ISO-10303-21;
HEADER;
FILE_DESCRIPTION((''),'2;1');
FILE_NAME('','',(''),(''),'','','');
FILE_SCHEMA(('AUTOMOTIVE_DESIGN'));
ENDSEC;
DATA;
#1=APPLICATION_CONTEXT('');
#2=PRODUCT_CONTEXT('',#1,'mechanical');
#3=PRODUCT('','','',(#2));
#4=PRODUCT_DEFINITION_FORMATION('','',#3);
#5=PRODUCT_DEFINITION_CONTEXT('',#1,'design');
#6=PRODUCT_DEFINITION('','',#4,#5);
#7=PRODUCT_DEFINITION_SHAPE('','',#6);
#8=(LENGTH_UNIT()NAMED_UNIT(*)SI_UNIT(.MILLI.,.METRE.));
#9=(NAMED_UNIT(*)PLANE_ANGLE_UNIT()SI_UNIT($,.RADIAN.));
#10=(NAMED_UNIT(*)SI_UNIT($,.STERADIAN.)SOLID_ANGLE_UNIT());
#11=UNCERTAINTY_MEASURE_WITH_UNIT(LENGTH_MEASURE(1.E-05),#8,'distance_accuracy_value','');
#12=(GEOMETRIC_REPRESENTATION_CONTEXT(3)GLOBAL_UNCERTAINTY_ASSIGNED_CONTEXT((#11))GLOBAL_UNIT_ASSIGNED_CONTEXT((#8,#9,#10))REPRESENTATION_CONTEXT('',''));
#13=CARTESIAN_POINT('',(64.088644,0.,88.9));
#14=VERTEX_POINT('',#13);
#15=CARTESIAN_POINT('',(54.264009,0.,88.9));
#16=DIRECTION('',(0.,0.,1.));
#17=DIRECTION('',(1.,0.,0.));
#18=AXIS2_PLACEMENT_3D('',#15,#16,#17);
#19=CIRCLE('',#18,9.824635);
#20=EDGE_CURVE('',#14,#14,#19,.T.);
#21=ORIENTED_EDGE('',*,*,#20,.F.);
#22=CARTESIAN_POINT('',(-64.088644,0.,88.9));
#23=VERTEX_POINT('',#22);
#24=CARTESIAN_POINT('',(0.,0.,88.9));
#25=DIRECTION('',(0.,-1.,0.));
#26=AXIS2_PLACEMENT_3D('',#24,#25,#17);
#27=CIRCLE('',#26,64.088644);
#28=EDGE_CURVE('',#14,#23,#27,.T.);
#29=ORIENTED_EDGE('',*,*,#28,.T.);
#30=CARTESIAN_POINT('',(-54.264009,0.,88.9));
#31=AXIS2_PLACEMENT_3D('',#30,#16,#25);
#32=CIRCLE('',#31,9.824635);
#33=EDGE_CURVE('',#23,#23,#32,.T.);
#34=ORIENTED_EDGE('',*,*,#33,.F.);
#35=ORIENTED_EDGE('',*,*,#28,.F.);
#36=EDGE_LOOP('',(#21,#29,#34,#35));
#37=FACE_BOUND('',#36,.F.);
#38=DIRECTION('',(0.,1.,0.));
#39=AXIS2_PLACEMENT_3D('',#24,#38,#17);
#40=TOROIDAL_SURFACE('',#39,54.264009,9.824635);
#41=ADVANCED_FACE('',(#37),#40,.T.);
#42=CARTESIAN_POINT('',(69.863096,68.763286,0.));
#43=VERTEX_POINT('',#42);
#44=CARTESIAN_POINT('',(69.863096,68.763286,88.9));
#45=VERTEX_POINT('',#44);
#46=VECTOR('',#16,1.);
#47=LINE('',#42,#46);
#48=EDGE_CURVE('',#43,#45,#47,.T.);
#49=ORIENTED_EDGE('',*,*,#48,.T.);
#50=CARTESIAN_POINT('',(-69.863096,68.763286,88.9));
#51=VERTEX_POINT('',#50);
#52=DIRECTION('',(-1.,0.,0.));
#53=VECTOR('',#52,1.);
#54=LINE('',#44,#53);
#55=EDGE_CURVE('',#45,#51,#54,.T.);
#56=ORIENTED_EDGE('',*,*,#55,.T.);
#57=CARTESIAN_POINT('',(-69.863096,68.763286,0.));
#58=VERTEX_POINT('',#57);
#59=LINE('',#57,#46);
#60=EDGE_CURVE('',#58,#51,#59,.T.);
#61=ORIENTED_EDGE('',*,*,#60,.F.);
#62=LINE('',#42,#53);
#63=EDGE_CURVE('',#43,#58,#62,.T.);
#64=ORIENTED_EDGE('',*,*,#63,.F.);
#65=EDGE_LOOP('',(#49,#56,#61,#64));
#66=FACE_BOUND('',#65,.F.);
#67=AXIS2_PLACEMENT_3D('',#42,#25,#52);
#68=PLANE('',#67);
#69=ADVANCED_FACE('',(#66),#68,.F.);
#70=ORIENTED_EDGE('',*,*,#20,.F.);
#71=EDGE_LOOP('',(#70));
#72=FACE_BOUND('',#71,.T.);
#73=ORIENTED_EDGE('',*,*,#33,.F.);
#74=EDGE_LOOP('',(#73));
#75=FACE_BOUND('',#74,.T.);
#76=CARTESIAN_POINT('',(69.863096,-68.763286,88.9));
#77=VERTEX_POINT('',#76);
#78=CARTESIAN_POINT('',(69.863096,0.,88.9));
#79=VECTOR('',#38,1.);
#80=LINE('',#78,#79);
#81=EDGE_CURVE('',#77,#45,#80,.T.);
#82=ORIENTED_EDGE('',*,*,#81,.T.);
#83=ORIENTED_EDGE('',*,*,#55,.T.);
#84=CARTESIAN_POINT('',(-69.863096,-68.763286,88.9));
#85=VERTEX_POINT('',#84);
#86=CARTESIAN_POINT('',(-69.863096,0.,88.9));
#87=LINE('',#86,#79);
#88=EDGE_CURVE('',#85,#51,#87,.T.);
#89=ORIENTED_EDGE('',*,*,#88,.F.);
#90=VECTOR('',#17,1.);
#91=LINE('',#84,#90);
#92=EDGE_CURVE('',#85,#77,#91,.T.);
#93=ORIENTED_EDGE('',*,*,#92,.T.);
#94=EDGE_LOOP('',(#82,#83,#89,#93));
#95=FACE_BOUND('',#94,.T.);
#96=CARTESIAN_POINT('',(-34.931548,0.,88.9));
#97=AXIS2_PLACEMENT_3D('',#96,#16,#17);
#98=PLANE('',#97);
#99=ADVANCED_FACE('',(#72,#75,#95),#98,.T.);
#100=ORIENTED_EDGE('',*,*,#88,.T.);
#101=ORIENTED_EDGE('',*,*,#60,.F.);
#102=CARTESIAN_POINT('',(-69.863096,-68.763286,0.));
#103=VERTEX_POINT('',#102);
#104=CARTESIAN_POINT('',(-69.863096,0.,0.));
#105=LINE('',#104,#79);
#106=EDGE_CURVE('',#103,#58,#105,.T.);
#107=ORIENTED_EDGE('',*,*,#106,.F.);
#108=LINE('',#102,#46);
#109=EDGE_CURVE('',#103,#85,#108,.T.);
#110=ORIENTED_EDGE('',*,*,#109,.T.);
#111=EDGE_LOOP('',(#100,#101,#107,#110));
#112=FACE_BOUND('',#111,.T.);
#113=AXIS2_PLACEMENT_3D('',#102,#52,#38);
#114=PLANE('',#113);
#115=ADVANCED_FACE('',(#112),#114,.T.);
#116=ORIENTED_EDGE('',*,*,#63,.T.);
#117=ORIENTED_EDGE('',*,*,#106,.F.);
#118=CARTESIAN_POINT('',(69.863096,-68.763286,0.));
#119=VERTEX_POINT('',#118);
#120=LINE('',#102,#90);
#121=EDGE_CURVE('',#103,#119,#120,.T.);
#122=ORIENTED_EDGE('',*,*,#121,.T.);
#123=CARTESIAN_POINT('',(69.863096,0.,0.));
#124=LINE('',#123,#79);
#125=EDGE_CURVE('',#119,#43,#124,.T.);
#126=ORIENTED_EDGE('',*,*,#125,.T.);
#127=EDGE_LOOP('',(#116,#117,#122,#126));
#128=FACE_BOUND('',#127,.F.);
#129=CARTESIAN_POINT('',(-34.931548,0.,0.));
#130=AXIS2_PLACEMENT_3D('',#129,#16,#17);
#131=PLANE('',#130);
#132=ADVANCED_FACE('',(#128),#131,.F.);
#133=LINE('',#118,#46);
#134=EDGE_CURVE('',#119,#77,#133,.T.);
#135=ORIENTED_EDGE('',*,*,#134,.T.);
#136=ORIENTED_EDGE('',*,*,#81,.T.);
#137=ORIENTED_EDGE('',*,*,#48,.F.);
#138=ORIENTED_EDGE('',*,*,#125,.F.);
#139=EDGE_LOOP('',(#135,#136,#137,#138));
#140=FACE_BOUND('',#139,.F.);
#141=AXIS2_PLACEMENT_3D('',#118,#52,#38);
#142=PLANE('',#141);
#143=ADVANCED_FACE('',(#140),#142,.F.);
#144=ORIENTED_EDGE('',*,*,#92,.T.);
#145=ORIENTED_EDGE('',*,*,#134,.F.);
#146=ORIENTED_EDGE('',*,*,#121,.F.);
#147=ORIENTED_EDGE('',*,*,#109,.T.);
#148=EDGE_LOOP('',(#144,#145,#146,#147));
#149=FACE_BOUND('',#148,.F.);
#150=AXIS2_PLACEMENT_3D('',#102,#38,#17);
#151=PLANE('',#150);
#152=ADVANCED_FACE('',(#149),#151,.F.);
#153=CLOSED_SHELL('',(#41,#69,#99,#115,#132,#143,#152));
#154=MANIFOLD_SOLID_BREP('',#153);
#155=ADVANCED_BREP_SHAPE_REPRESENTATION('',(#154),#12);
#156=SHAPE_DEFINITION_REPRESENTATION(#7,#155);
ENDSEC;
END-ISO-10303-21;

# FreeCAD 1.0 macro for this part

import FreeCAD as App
import Part
import Sketcher
Q = App.Units.Quantity


def add_polygon(sketch, points):
    """Adds a closed chain of lines whose ends are joined by coincident constraints."""
    first, n = sketch.GeometryCount, len(points)
    for a, b in zip(points, points[1:] + points[:1]):
        sketch.addGeometry(Part.LineSegment(App.Vector(*a, 0), App.Vector(*b, 0)), False)
    for i in range(n):
        sketch.addConstraint(Sketcher.Constraint("Coincident", first + i, 2, first + (i + 1) % n, 1))

doc = App.newDocument("Part")
body = doc.addObject("PartDesign::Body", "Body")

# Sketch on XY plane
sketch1 = body.newObject("Sketcher::SketchObject", "Sketch")
sketch1.AttachmentSupport = (doc.getObject("XY_Plane"), [""])
sketch1.MapMode = "FlatFace"
add_polygon(sketch1, [(-69.863096, 68.763286), (-69.863096, -68.763286), (69.863096, -68.763286), (69.863096, 68.763286)])  # lines 0-3
sketch1.addConstraint([
    Sketcher.Constraint("Vertical", 0),
    Sketcher.Constraint("Horizontal", 1),
    Sketcher.Constraint("Vertical", 2),
    Sketcher.Constraint("Horizontal", 3),
    Sketcher.Constraint("Symmetric", 0, 2, 2, 2, -1, 1),
    Sketcher.Constraint("DistanceX", 1, 1, 1, 2, 139.726192),
    Sketcher.Constraint("DistanceY", 0, 2, 0, 1, 137.526572),
])
pad1 = body.newObject("PartDesign::Pad", "Pad")
pad1.Profile = sketch1
pad1.Length = Q("3.5 in")

# Sketch on XY plane
sketch2 = body.newObject("Sketcher::SketchObject", "Sketch001")
sketch2.AttachmentSupport = (doc.getObject("XY_Plane"), [""])
sketch2.MapMode = "FlatFace"
sketch2.AttachmentOffset = App.Placement(App.Vector(0, 0, 3.5 * 25.4), App.Rotation())
sketch2.addGeometry(Part.Circle(App.Vector(54.264009, 0, 0), App.Vector(0, 0, 1), 9.824635), False)
sketch2.addConstraint([
    Sketcher.Constraint("PointOnObject", 0, 3, -1),
    Sketcher.Constraint("Diameter", 0, 19.64927),
    Sketcher.Constraint("DistanceX", -1, 1, 0, 3, 54.264009),
])
revolution = body.newObject("PartDesign::Revolution", "Revolution")
revolution.Profile = sketch2
revolution.ReferenceAxis = (sketch2, ["V_Axis"])
revolution.Angle = 360

doc.recompute()
